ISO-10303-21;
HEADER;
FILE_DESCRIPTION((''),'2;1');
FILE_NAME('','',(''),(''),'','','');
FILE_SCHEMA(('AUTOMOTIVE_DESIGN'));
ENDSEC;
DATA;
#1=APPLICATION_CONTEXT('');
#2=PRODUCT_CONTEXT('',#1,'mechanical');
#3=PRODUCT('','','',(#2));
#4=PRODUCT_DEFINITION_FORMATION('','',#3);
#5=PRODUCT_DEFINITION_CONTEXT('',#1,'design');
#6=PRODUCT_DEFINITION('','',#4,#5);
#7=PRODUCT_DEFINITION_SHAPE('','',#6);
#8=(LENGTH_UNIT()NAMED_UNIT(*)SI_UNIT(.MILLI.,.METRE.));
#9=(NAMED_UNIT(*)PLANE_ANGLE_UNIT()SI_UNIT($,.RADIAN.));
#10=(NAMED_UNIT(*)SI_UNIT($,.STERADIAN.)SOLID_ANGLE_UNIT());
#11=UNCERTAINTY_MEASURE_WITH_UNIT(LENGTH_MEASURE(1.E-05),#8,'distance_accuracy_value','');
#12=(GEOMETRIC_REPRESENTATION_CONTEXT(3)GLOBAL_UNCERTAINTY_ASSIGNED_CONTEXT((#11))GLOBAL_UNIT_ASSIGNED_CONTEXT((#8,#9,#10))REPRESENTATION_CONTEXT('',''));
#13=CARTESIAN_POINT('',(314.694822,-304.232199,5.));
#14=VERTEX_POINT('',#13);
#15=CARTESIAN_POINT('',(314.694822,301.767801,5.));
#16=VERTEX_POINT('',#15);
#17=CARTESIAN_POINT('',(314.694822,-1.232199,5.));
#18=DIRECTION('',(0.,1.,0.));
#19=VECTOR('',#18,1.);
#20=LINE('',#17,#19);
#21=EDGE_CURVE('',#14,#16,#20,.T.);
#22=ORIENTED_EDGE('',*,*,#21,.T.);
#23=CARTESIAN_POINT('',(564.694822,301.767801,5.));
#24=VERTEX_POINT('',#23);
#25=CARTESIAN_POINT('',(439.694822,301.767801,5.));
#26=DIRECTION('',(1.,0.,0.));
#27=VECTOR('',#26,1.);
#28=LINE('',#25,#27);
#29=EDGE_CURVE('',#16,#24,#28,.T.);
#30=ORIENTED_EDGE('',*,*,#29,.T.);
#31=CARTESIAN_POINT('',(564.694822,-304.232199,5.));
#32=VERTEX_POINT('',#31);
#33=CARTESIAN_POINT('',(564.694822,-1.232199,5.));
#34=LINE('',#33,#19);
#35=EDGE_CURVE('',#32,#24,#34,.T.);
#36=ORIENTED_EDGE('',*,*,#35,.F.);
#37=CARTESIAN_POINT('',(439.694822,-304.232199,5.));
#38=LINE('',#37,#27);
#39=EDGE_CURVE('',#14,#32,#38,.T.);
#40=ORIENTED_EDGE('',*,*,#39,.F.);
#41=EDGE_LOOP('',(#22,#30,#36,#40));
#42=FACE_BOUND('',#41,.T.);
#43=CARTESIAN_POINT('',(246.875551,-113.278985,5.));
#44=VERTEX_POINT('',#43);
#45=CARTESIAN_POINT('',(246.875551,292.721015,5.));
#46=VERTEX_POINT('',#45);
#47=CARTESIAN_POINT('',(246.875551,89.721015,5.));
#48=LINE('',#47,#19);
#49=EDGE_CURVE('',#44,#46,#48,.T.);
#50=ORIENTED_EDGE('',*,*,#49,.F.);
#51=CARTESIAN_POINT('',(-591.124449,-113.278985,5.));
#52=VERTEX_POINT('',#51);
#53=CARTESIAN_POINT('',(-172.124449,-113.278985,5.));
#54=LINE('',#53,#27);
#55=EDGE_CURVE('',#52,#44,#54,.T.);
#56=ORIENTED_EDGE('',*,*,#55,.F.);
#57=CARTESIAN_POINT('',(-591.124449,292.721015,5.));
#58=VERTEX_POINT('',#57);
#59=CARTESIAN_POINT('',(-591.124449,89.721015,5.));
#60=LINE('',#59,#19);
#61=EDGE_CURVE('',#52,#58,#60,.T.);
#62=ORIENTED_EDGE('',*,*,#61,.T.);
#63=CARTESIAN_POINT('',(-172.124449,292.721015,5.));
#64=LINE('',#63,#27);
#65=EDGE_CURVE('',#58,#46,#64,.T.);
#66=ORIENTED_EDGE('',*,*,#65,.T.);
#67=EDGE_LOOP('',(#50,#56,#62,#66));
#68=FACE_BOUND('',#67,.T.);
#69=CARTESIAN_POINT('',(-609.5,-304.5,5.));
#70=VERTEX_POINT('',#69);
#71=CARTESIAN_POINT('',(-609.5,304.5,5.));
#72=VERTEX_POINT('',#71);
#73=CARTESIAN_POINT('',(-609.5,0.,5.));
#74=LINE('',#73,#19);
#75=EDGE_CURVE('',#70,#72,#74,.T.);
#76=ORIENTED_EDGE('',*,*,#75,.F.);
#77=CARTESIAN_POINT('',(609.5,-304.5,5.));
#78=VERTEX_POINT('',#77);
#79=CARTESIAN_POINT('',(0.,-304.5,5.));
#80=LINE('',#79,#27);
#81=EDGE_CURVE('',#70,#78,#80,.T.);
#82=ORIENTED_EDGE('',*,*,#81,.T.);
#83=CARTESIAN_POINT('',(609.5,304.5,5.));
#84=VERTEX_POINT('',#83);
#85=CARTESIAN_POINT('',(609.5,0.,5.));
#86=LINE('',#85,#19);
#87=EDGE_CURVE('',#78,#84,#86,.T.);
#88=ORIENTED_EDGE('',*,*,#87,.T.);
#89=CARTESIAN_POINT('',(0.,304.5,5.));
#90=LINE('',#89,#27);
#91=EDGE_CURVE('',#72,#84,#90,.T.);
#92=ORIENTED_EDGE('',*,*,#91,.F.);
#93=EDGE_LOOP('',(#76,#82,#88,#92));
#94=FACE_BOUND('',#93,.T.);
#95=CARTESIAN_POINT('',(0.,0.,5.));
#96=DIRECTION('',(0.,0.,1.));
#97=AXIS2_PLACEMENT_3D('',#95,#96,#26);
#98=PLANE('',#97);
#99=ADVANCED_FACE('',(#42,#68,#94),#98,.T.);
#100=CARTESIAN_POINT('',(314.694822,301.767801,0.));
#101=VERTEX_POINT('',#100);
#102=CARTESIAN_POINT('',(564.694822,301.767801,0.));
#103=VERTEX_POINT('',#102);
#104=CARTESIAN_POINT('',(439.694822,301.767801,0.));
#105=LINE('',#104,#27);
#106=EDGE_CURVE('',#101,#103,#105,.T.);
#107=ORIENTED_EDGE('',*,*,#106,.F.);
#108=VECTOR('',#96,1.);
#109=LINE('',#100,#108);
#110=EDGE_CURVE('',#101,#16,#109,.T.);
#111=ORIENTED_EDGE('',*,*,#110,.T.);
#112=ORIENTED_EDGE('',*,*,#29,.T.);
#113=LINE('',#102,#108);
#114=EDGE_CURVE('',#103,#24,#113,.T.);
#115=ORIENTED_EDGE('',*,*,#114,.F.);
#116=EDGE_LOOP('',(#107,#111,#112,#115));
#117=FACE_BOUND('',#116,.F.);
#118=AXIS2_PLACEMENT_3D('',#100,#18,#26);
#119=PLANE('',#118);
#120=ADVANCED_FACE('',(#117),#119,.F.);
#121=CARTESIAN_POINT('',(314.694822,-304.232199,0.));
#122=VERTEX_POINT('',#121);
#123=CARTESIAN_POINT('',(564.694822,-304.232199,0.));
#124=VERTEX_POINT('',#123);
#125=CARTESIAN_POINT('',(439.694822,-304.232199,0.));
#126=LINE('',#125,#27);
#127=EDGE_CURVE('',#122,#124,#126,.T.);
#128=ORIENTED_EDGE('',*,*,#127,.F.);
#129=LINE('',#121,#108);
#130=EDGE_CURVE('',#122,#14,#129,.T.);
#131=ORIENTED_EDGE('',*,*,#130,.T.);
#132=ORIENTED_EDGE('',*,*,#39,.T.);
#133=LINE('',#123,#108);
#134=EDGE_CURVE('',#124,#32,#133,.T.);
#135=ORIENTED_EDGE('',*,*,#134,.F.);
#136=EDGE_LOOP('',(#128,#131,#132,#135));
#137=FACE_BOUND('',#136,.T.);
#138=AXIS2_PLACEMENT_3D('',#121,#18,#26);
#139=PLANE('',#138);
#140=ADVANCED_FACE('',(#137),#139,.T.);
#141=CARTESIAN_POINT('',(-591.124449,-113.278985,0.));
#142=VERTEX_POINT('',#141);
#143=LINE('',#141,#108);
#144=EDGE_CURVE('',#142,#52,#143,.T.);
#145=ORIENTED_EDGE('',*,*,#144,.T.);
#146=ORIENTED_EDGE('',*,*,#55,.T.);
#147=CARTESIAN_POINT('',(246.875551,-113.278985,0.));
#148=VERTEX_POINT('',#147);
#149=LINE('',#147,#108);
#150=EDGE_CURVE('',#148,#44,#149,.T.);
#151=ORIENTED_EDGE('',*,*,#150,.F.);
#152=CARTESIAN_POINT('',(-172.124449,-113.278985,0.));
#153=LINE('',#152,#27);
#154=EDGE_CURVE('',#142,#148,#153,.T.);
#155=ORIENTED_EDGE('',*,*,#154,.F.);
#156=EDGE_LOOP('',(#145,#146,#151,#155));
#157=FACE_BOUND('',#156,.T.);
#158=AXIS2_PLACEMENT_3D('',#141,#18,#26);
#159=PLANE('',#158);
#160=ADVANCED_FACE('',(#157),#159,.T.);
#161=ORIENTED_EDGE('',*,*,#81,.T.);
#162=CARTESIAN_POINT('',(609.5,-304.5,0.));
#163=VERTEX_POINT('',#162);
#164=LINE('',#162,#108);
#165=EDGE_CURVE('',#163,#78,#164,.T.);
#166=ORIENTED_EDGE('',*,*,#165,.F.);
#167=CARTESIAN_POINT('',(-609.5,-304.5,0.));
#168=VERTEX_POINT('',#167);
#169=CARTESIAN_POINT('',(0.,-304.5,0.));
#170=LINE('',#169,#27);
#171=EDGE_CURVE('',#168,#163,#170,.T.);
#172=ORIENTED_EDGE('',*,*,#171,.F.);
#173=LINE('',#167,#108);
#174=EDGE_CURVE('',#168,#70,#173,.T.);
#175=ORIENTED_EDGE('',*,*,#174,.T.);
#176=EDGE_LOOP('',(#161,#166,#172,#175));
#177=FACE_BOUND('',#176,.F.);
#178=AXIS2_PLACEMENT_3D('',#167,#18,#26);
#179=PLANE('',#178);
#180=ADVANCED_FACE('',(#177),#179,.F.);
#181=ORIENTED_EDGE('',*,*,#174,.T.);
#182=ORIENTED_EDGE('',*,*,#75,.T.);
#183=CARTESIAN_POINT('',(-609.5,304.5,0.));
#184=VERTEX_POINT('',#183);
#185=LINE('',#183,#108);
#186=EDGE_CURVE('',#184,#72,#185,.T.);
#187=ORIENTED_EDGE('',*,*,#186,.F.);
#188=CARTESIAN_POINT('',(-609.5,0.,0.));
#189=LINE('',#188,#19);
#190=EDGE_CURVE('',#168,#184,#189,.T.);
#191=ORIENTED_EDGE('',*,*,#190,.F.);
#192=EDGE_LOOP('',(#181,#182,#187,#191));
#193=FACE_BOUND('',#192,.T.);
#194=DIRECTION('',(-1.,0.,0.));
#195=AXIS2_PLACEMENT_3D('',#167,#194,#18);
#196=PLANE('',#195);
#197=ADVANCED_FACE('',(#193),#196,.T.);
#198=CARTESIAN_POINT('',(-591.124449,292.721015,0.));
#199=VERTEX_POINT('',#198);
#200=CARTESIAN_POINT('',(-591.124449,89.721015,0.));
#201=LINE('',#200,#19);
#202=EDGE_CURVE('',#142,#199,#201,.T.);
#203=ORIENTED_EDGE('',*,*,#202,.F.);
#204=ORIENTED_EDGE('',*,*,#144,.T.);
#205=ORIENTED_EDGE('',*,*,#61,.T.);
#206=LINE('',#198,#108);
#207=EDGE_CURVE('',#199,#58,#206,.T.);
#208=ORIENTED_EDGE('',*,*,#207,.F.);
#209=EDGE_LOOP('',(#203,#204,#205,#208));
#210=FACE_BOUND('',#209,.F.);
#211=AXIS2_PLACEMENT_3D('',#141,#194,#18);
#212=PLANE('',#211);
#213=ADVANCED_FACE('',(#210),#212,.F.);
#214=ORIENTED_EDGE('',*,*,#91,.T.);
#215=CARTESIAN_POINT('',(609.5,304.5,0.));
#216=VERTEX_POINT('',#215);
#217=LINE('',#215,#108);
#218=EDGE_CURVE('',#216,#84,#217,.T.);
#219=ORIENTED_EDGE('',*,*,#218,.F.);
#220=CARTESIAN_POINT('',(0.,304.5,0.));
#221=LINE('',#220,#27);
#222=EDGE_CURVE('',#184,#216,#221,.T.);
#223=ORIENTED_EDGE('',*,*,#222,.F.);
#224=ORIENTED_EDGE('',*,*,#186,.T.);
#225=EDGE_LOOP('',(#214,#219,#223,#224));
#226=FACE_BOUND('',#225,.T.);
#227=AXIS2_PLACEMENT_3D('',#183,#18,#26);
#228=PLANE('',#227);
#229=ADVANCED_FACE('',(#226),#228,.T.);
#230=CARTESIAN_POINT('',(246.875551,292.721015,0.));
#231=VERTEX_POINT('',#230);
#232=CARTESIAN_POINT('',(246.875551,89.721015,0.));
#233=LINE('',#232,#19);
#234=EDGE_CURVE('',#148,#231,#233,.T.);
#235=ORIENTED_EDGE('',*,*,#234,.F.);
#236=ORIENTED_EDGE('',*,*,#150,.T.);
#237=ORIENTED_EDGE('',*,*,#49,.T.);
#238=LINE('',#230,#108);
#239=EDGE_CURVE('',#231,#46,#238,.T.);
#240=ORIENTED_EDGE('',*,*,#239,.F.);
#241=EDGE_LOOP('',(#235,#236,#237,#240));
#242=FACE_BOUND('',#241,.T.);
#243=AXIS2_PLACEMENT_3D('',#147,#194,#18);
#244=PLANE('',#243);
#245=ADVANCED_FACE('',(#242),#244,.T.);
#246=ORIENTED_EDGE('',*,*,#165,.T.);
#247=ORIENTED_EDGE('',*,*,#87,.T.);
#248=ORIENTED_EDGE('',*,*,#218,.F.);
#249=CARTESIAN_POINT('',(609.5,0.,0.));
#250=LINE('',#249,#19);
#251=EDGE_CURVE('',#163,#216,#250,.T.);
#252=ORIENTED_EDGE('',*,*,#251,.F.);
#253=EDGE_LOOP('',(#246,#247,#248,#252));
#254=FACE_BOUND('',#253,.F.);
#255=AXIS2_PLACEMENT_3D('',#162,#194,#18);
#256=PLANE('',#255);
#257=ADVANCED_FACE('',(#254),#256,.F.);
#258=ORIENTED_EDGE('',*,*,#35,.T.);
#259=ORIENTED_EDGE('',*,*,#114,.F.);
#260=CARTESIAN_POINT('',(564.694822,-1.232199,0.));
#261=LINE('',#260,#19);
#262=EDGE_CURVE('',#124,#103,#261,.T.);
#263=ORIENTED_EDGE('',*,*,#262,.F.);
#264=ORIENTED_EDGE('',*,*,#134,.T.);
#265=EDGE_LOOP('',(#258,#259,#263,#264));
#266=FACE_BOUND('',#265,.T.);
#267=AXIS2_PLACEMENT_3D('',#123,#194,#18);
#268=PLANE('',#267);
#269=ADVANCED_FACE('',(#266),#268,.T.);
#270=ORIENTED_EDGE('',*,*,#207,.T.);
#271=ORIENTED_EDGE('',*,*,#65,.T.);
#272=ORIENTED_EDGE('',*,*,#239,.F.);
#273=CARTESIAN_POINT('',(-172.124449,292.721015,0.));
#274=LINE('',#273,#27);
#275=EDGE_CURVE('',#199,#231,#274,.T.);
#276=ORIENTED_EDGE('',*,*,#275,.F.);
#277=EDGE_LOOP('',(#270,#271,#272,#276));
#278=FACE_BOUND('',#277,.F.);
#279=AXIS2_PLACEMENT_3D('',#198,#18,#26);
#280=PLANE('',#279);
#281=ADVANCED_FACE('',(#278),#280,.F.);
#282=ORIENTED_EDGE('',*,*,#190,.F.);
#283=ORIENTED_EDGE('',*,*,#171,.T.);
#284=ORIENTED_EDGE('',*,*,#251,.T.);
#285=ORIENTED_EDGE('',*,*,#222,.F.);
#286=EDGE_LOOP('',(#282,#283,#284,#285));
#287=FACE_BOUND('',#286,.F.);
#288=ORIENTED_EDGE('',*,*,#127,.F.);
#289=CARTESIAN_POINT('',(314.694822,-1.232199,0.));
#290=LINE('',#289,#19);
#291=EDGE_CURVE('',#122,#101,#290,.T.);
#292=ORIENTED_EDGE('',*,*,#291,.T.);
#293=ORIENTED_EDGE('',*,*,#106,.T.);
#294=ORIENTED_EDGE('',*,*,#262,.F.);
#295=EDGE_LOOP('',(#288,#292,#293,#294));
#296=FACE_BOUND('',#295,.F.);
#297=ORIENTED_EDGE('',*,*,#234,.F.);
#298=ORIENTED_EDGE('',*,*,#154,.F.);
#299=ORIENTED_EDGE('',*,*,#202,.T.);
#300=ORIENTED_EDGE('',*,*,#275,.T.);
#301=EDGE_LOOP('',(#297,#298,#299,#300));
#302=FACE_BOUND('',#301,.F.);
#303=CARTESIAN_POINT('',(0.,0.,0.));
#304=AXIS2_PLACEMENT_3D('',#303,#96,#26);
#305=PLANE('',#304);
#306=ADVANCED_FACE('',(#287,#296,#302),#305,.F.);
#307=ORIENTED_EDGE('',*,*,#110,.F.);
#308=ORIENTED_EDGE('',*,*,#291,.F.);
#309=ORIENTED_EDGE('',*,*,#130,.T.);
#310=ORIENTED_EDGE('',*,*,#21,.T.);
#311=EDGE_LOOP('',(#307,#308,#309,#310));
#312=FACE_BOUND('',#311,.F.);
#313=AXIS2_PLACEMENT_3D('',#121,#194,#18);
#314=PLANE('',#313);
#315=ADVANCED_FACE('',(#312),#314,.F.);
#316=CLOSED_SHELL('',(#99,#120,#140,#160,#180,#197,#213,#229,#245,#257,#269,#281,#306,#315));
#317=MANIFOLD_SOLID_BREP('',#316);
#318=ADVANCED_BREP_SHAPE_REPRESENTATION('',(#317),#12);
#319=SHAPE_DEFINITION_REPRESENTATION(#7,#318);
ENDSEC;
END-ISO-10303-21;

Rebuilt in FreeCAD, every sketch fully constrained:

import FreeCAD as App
import Part
import Sketcher

V = App.Vector
Q = App.Units.Quantity

doc = App.newDocument("Part")
body = doc.addObject("PartDesign::Body", "Body")

# Sketch on XY plane
sketch1 = doc.addObject("Sketcher::SketchObject", "Sketch")
body.addObject(sketch1)
sketch1.AttachmentSupport = (doc.XY_Plane, [""])
sketch1.MapMode = "FlatFace"
sketch1.addGeometry([
    Part.LineSegment(V(-610, 304, 0), V(-610, -304, 0)),  # 0
    Part.LineSegment(V(-610, -304, 0), V(610, -304, 0)),  # 1
    Part.LineSegment(V(610, -304, 0), V(610, 304, 0)),  # 2
    Part.LineSegment(V(610, 304, 0), V(-610, 304, 0)),  # 3
    Part.LineSegment(V(247, -113, 0), V(-591, -113, 0)),  # 4
    Part.LineSegment(V(-591, -113, 0), V(-591, 293, 0)),  # 5
    Part.LineSegment(V(-591, 293, 0), V(247, 293, 0)),  # 6
    Part.LineSegment(V(247, 293, 0), V(247, -113, 0)),  # 7
    Part.LineSegment(V(565, -304, 0), V(315, -304, 0)),  # 8
    Part.LineSegment(V(315, -304, 0), V(315, 302, 0)),  # 9
    Part.LineSegment(V(315, 302, 0), V(565, 302, 0)),  # 10
    Part.LineSegment(V(565, 302, 0), V(565, -304, 0)),  # 11
], False)
sketch1.addConstraint([
    Sketcher.Constraint("Coincident", 0, 2, 1, 1),
    Sketcher.Constraint("Coincident", 1, 2, 2, 1),
    Sketcher.Constraint("Coincident", 2, 2, 3, 1),
    Sketcher.Constraint("Coincident", 3, 2, 0, 1),
    Sketcher.Constraint("Coincident", 4, 2, 5, 1),
    Sketcher.Constraint("Coincident", 5, 2, 6, 1),
    Sketcher.Constraint("Coincident", 6, 2, 7, 1),
    Sketcher.Constraint("Coincident", 7, 2, 4, 1),
    Sketcher.Constraint("Coincident", 8, 2, 9, 1),
    Sketcher.Constraint("Coincident", 9, 2, 10, 1),
    Sketcher.Constraint("Coincident", 10, 2, 11, 1),
    Sketcher.Constraint("Coincident", 11, 2, 8, 1),
    Sketcher.Constraint("Vertical", 0),
    Sketcher.Constraint("Horizontal", 1),
    Sketcher.Constraint("Vertical", 2),
    Sketcher.Constraint("Horizontal", 3),
    Sketcher.Constraint("Horizontal", 4),
    Sketcher.Constraint("Vertical", 5),
    Sketcher.Constraint("Horizontal", 6),
    Sketcher.Constraint("Vertical", 7),
    Sketcher.Constraint("Horizontal", 8),
    Sketcher.Constraint("Vertical", 9),
    Sketcher.Constraint("Horizontal", 10),
    Sketcher.Constraint("Vertical", 11),
    Sketcher.Constraint("Symmetric", 0, 2, 2, 2, -1, 1),
    Sketcher.Constraint("DistanceX", 1, 1, 1, 2, Q("1219 mm")),
    Sketcher.Constraint("DistanceX", 4, 2, 4, 1, Q("838 mm")),
    Sketcher.Constraint("DistanceX", 8, 2, 8, 1, Q("250 mm")),
    Sketcher.Constraint("DistanceY", 0, 2, 0, 1, Q("609 mm")),
    Sketcher.Constraint("DistanceY", 5, 1, 5, 2, Q("406 mm")),
    Sketcher.Constraint("DistanceY", 9, 1, 9, 2, Q("606 mm")),
    Sketcher.Constraint("DistanceY", 8, 2, -1, 1, Q("304.232199 mm")),
    Sketcher.Constraint("DistanceX", 4, 2, -1, 1, Q("591.124449 mm")),
    Sketcher.Constraint("DistanceX", -1, 1, 8, 2, Q("314.694822 mm")),
    Sketcher.Constraint("DistanceY", 4, 2, -1, 1, Q("113.278985 mm")),
])
pad1 = doc.addObject("PartDesign::Pad", "Pad")
body.addObject(pad1)
pad1.Profile = sketch1
pad1.Length = 5

doc.recompute()
